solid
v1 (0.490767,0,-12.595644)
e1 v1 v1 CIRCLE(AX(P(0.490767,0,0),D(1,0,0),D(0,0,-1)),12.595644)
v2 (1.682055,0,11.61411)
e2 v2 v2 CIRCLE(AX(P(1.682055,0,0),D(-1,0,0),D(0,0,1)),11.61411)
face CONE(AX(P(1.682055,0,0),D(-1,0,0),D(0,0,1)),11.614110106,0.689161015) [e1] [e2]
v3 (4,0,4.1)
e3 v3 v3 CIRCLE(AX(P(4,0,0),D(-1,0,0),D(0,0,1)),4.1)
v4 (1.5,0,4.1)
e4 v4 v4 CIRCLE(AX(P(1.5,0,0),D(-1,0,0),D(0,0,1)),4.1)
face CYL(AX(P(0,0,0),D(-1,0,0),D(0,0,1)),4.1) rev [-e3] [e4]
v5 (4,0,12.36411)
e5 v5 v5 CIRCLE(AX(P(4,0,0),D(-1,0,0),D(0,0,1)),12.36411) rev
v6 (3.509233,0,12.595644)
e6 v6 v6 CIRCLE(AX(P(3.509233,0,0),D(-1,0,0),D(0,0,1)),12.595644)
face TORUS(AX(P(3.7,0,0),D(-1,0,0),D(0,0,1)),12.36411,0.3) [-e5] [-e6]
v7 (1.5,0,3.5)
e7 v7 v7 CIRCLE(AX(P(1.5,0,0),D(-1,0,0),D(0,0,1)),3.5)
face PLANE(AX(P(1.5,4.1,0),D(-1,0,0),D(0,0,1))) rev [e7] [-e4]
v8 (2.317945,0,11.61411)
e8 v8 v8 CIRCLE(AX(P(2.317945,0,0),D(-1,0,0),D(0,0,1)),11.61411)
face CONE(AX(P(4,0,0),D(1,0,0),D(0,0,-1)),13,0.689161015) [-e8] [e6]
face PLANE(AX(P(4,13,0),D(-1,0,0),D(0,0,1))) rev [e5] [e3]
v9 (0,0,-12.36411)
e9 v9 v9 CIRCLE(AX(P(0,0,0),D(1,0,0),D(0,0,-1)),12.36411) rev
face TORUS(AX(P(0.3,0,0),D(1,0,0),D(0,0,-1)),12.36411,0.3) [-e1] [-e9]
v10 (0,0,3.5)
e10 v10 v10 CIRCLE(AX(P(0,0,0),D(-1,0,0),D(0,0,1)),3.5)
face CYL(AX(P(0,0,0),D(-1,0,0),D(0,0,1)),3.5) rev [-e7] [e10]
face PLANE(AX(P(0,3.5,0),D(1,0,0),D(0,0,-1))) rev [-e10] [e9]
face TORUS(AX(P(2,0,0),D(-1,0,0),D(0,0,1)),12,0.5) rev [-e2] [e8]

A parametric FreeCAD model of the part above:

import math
import FreeCAD as App
import Part
import Sketcher
from FreeCAD import Vector
Q = App.Units.Quantity


def edges_at(feature, points):
    """Names of the edges that pass closest to the given points."""
    edges = feature.Shape.Edges
    near = lambda p: min(range(len(edges)), key=lambda i: edges[i].distToShape(Part.Vertex(*p))[0])
    return sorted({f"Edge{near(p) + 1}" for p in points})

doc = App.newDocument("Part")
body = doc.addObject("PartDesign::Body", "Body")

# Sketch on XY plane
sketch1 = doc.addObject("Sketcher::SketchObject", "Sketch")
body.addObject(sketch1)
sketch1.AttachmentSupport = (doc.XY_Plane, [""])
sketch1.MapMode = "FlatFace"
sketch1.addGeometry([
    Part.LineSegment(Vector(0, 13, 0), Vector(0, 3.5, 0)),  # 0
    Part.LineSegment(Vector(0, 3.5, 0), Vector(1.5, 3.5, 0)),  # 1
    Part.LineSegment(Vector(1.5, 3.5, 0), Vector(1.5, 4.1, 0)),  # 2
    Part.LineSegment(Vector(1.5, 4.1, 0), Vector(4, 4.1, 0)),  # 3
    Part.LineSegment(Vector(4, 4.1, 0), Vector(4, 13, 0)),  # 4
    Part.LineSegment(Vector(4, 13, 0), Vector(2.32, 11.61, 0)),  # 5
    Part.ArcOfCircle(Part.Circle(Vector(2, 12, 0), Vector(0, 0, 1), 0.5), math.radians(-129), math.radians(-51)),  # 6
    Part.LineSegment(Vector(1.68, 11.61, 0), Vector(0, 13, 0)),  # 7
], False)
sketch1.addConstraint([
    Sketcher.Constraint("Coincident", 0, 2, 1, 1),
    Sketcher.Constraint("Coincident", 1, 2, 2, 1),
    Sketcher.Constraint("Coincident", 2, 2, 3, 1),
    Sketcher.Constraint("Coincident", 3, 2, 4, 1),
    Sketcher.Constraint("Coincident", 4, 2, 5, 1),
    Sketcher.Constraint("Tangent", 5, 2, 6, 2),
    Sketcher.Constraint("Tangent", 6, 1, 7, 1),
    Sketcher.Constraint("Coincident", 7, 2, 0, 1),
    Sketcher.Constraint("Vertical", 0),
    Sketcher.Constraint("Horizontal", 1),
    Sketcher.Constraint("Vertical", 2),
    Sketcher.Constraint("Horizontal", 3),
    Sketcher.Constraint("Vertical", 4),
    Sketcher.Constraint("PointOnObject", 0, 2, -2),
    Sketcher.Constraint("Horizontal", 5, 2, 6, 1),
    Sketcher.Constraint("Horizontal", 4, 2, 7, 2),
    Sketcher.Constraint("Radius", 6, Q("0.5 mm")),
    Sketcher.Constraint("DistanceX", 1, 1, 1, 2, Q("1.5 mm")),
    Sketcher.Constraint("DistanceX", 3, 1, 3, 2, Q("2.5 mm")),
    Sketcher.Constraint("DistanceY", 0, 2, 0, 1, Q("9.5 mm")),
    Sketcher.Constraint("DistanceY", 2, 1, 2, 2, Q("0.6 mm")),
    Sketcher.Constraint("DistanceY", -1, 1, 6, 3, Q("12 mm")),
    Sketcher.Constraint("DistanceY", -1, 1, 4, 2, Q("13 mm")),
])
revolution = doc.addObject("PartDesign::Revolution", "Revolution")
body.addObject(revolution)
revolution.Profile = sketch1
revolution.ReferenceAxis = (sketch1, ["H_Axis"])
revolution.Angle = 360
doc.recompute()

fillet = doc.addObject("PartDesign::Fillet", "Fillet")
body.addObject(fillet)
fillet.Base = (revolution, edges_at(revolution, [(0, 0, -13), (4, 0, -13)]))
fillet.Radius = 0.3

doc.recompute()
